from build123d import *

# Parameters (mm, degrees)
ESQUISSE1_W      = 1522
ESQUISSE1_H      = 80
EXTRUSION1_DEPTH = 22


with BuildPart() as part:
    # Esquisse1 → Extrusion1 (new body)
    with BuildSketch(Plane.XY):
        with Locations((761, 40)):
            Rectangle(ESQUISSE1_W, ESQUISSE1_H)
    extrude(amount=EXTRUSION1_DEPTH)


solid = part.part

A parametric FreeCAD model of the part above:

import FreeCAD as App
import Part
import Sketcher


def add_polygon(sketch, points):
    """Adds a closed chain of lines whose ends are joined by coincident constraints."""
    first, n = sketch.GeometryCount, len(points)
    for a, b in zip(points, points[1:] + points[:1]):
        sketch.addGeometry(Part.LineSegment(App.Vector(*a, 0), App.Vector(*b, 0)), False)
    for i in range(n):
        sketch.addConstraint(Sketcher.Constraint("Coincident", first + i, 2, first + (i + 1) % n, 1))

doc = App.newDocument("Part")
body = doc.addObject("PartDesign::Body", "Body")

# Sketch on XY plane
sketch1 = body.newObject("Sketcher::SketchObject", "Sketch")
sketch1.AttachmentSupport = (doc.getObject("XY_Plane"), [""])
sketch1.MapMode = "FlatFace"
add_polygon(sketch1, [(0, 80), (0, 0), (1522, 0), (1522, 80)])  # lines 0-3
sketch1.addConstraint([
    Sketcher.Constraint("Vertical", 0),
    Sketcher.Constraint("Horizontal", 1),
    Sketcher.Constraint("Vertical", 2),
    Sketcher.Constraint("Horizontal", 3),
    Sketcher.Constraint("Coincident", 0, 2, -1, 1),
    Sketcher.Constraint("DistanceX", 1, 1, 1, 2, 1522.0),
    Sketcher.Constraint("DistanceY", 0, 2, 0, 1, 80.0),
])
pad1 = body.newObject("PartDesign::Pad", "Pad")
pad1.Profile = sketch1
pad1.Length = 22

doc.recompute()
